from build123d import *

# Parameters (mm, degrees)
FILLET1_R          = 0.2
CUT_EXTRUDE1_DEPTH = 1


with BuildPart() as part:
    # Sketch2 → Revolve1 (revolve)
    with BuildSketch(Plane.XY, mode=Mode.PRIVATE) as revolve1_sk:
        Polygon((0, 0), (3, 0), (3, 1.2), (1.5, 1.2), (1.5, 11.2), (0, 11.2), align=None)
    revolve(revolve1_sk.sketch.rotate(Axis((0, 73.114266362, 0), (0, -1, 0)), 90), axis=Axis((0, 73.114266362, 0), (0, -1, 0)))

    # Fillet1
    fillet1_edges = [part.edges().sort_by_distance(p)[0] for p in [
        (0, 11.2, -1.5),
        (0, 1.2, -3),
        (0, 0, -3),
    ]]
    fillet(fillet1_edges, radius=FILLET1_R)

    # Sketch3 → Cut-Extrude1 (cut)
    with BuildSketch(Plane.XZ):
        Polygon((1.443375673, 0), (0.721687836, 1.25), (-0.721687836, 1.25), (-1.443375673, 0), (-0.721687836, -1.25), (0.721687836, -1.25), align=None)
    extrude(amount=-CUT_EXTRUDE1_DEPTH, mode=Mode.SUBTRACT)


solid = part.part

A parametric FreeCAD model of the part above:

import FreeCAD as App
import Part
import Sketcher
from FreeCAD import Vector
Q = App.Units.Quantity


def edges_at(feature, points):
    """Names of the edges that pass closest to the given points."""
    edges = feature.Shape.Edges
    near = lambda p: min(range(len(edges)), key=lambda i: edges[i].distToShape(Part.Vertex(*p))[0])
    return sorted({f"Edge{near(p) + 1}" for p in points})


def add_polygon(sketch, points):
    """Adds a closed chain of lines whose ends are joined by coincident constraints."""
    first, n = sketch.GeometryCount, len(points)
    for a, b in zip(points, points[1:] + points[:1]):
        sketch.addGeometry(Part.LineSegment(App.Vector(*a, 0), App.Vector(*b, 0)), False)
    for i in range(n):
        sketch.addConstraint(Sketcher.Constraint("Coincident", first + i, 2, first + (i + 1) % n, 1))

doc = App.newDocument("Part")
params = doc.addObject("Spreadsheet::Sheet", "Params")
for row, (alias, value) in enumerate([
    ("sketch1_width", "3 mm"),
    ("sketch1_height", "10 mm"),
    ("sketch1_height2", "1.2 mm"),
    ("revolution_angle", "360 deg"),
    ("fillet_radius", "0.2 mm"),
    ("pocket1_length", "1 mm"),
], start=1):
    params.set(f"A{row}", alias)
    params.set(f"B{row}", "=" + value)
    params.setAlias(f"B{row}", alias)

body = doc.addObject("PartDesign::Body", "Body")

sketch1 = body.newObject("Sketcher::SketchObject", "Sketch")
sketch1.AttachmentSupport = (doc.getObject("XY_Plane"), [""])
sketch1.MapMode = "FlatFace"
add_polygon(sketch1, [(0, 0), (3, 0), (3, 1.2), (1.5, 1.2), (1.5, 11.2), (0, 11.2)])
sketch1.addConstraint([
    Sketcher.Constraint("Horizontal", 0),
    Sketcher.Constraint("Vertical", 1),
    Sketcher.Constraint("Horizontal", 2),
    Sketcher.Constraint("Vertical", 3),
    Sketcher.Constraint("Horizontal", 4),
    Sketcher.Constraint("Vertical", 5),
    Sketcher.Constraint("Coincident", 5, 2, -1, 1),
    Sketcher.Constraint("Equal", 2, 4),
    Sketcher.Constraint("DistanceX", 0, 1, 0, 2, 3.0),
    Sketcher.Constraint("DistanceY", 3, 1, 3, 2, 10.0),
    Sketcher.Constraint("DistanceY", 1, 1, 1, 2, 1.2),
])
sketch1.setExpression("Constraints[14]", "Params.sketch1_width")
sketch1.setExpression("Constraints[15]", "Params.sketch1_height")
sketch1.setExpression("Constraints[16]", "Params.sketch1_height2")
revolution = body.newObject("PartDesign::Revolution", "Revolution")
revolution.Profile = sketch1
revolution.ReferenceAxis = (sketch1, ["V_Axis"])
revolution.setExpression("Angle", "Params.revolution_angle")
doc.recompute()

fillet = body.newObject("PartDesign::Fillet", "Fillet")
fillet.Base = (revolution, edges_at(revolution, [(0, 11.2, -1.5), (0, 1.2, -3), (0, 0, -3)]))
fillet.setExpression("Radius", "Params.fillet_radius")

sketch2 = body.newObject("Sketcher::SketchObject", "Sketch001")
sketch2.AttachmentSupport = (doc.getObject("XZ_Plane"), [""])
sketch2.MapMode = "FlatFace"
add_polygon(sketch2, [(1.4, 0), (0.7, 1.2), (-0.7, 1.2), (-1.4, 0), (-0.7, -1.2), (0.7, -1.2)])
sketch2.addConstraint([
    Sketcher.Constraint("Horizontal", 1),
    Sketcher.Constraint("Horizontal", 4),
    Sketcher.Constraint("Symmetric", 0, 2, 3, 2, -1, 1),
    Sketcher.Constraint("Symmetric", 2, 2, 5, 2, -1, 1),
    Sketcher.Constraint("PointOnObject", 2, 2, -1),
    Sketcher.Constraint("Parallel", 2, 5),
    Sketcher.Constraint("Vertical", 1, 2, 3, 2),
    Sketcher.Constraint("Angle", 0, Q("120 deg")),
    Sketcher.Constraint("DistanceY", 3, 2, 1, 2, 2.5),
    Sketcher.Constraint("DistanceX", 1, 2, 1, 1, 1.443376),
])
pocket1 = body.newObject("PartDesign::Pocket", "Pocket")
pocket1.Profile = sketch2
pocket1.setExpression("Length", "Params.pocket1_length")

doc.recompute()
